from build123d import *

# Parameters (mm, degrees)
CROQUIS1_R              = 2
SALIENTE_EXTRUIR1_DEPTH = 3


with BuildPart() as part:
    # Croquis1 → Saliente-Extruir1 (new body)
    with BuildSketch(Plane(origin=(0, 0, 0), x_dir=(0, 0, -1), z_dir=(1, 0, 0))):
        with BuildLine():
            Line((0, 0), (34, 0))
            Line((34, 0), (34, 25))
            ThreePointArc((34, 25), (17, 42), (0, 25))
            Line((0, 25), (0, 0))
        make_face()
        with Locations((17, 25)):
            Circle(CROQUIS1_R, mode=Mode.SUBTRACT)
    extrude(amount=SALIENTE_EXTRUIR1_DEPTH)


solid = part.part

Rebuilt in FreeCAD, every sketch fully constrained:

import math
import FreeCAD as App
import Part
import Sketcher

V = App.Vector
Q = App.Units.Quantity

doc = App.newDocument("Part")
params = doc.addObject("Spreadsheet::Sheet", "Params")
for row, (alias, value) in enumerate([
    ("sketch1_diameter", "4 mm"),
    ("sketch1_radius", "17 mm"),
    ("sketch1_width", "25 mm"),
    ("pad1_length", "3 mm"),
], start=1):
    params.set(f"A{row}", alias)
    params.set(f"B{row}", "=" + value)
    params.setAlias(f"B{row}", alias)

body = doc.addObject("PartDesign::Body", "Body")

# Sketch on YZ plane
sketch1 = body.newObject("Sketcher::SketchObject", "Sketch")
sketch1.AttachmentSupport = (doc.getObject("YZ_Plane"), [""])
sketch1.MapMode = "FlatFace"
sketch1.addGeometry([
    Part.LineSegment(V(0, 0, 0), V(0, -34, 0)),  # 0
    Part.LineSegment(V(0, -34, 0), V(25, -34, 0)),  # 1
    Part.ArcOfCircle(Part.Circle(V(25, -17, 0), V(0, 0, 1), 17), math.radians(-90), math.radians(90)),  # 2
    Part.LineSegment(V(25, 0, 0), V(0, 0, 0)),  # 3
    Part.Circle(V(25, -17, 0), V(0, 0, 1), 2),  # 4
], False)
sketch1.addConstraint([
    Sketcher.Constraint("Coincident", 0, 2, 1, 1),
    Sketcher.Constraint("Tangent", 1, 2, 2, 1),
    Sketcher.Constraint("Tangent", 2, 2, 3, 1),
    Sketcher.Constraint("Coincident", 3, 2, 0, 1),
    Sketcher.Constraint("Vertical", 0),
    Sketcher.Constraint("Horizontal", 1),
    Sketcher.Constraint("Horizontal", 3),
    Sketcher.Constraint("Coincident", 3, 2, -1, 1),
    Sketcher.Constraint("Coincident", 4, 3, 2, 3),
    Sketcher.Constraint("Diameter", 4, Q("4 mm")),
    Sketcher.Constraint("Radius", 2, Q("17 mm")),
    Sketcher.Constraint("DistanceX", 1, 1, 1, 2, Q("25 mm")),
])
sketch1.setExpression("Constraints[9]", "Params.sketch1_diameter")
sketch1.setExpression("Constraints[10]", "Params.sketch1_radius")
sketch1.setExpression("Constraints[11]", "Params.sketch1_width")
pad1 = body.newObject("PartDesign::Pad", "Pad")
pad1.Profile = sketch1
pad1.setExpression("Length", "Params.pad1_length")

doc.recompute()
